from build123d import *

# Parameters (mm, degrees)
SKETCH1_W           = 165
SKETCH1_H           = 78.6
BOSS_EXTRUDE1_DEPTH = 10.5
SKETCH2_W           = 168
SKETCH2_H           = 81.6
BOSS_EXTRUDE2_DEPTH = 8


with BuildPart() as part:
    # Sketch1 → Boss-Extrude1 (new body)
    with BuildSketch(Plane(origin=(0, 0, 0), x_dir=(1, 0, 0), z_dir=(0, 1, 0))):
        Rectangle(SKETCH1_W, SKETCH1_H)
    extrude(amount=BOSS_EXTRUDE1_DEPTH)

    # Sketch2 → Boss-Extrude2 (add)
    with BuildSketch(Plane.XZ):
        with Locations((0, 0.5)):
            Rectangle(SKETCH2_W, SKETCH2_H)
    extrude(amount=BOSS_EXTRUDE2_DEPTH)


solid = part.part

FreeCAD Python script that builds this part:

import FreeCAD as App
import Part
import Sketcher
Q = App.Units.Quantity


def add_polygon(sketch, points):
    """Adds a closed chain of lines whose ends are joined by coincident constraints."""
    first, n = sketch.GeometryCount, len(points)
    for a, b in zip(points, points[1:] + points[:1]):
        sketch.addGeometry(Part.LineSegment(App.Vector(*a, 0), App.Vector(*b, 0)), False)
    for i in range(n):
        sketch.addConstraint(Sketcher.Constraint("Coincident", first + i, 2, first + (i + 1) % n, 1))

doc = App.newDocument("Part")
body = doc.addObject("PartDesign::Body", "Body")

# Sketch on XZ plane
sketch1 = doc.addObject("Sketcher::SketchObject", "Sketch")
body.addObject(sketch1)
sketch1.AttachmentSupport = (doc.XZ_Plane, [""])
sketch1.MapMode = "FlatFace"
add_polygon(sketch1, [(-82, -39), (-82, 39), (82, 39), (82, -39)])  # lines 0-3
sketch1.addConstraint([
    Sketcher.Constraint("Vertical", 0),
    Sketcher.Constraint("Horizontal", 1),
    Sketcher.Constraint("Vertical", 2),
    Sketcher.Constraint("Horizontal", 3),
    Sketcher.Constraint("Symmetric", 0, 2, 2, 2, -1, 1),
    Sketcher.Constraint("DistanceX", 1, 1, 1, 2, Q("165 mm")),
    Sketcher.Constraint("DistanceY", 0, 1, 0, 2, Q("78.6 mm")),
])
pad1 = doc.addObject("PartDesign::Pad", "Pad")
body.addObject(pad1)
pad1.Profile = sketch1
pad1.Length = 10.5
pad1.Reversed = True

# Sketch on XZ plane
sketch2 = doc.addObject("Sketcher::SketchObject", "Sketch001")
body.addObject(sketch2)
sketch2.AttachmentSupport = (doc.XZ_Plane, [""])
sketch2.MapMode = "FlatFace"
add_polygon(sketch2, [(-84, 41), (-84, -40), (84, -40), (84, 41)])  # lines 0-3
sketch2.addConstraint([
    Sketcher.Constraint("Vertical", 0),
    Sketcher.Constraint("Horizontal", 1),
    Sketcher.Constraint("Vertical", 2),
    Sketcher.Constraint("Horizontal", 3),
    Sketcher.Constraint("DistanceX", 1, 1, 1, 2, Q("168 mm")),
    Sketcher.Constraint("DistanceY", 0, 2, 0, 1, Q("81.6 mm")),
    Sketcher.Constraint("DistanceX", 0, 2, -1, 1, Q("84 mm")),
    Sketcher.Constraint("DistanceY", 0, 2, -1, 1, Q("40.3 mm")),
])
pad2 = doc.addObject("PartDesign::Pad", "Pad001")
body.addObject(pad2)
pad2.Profile = sketch2
pad2.Length = 8

doc.recompute()
